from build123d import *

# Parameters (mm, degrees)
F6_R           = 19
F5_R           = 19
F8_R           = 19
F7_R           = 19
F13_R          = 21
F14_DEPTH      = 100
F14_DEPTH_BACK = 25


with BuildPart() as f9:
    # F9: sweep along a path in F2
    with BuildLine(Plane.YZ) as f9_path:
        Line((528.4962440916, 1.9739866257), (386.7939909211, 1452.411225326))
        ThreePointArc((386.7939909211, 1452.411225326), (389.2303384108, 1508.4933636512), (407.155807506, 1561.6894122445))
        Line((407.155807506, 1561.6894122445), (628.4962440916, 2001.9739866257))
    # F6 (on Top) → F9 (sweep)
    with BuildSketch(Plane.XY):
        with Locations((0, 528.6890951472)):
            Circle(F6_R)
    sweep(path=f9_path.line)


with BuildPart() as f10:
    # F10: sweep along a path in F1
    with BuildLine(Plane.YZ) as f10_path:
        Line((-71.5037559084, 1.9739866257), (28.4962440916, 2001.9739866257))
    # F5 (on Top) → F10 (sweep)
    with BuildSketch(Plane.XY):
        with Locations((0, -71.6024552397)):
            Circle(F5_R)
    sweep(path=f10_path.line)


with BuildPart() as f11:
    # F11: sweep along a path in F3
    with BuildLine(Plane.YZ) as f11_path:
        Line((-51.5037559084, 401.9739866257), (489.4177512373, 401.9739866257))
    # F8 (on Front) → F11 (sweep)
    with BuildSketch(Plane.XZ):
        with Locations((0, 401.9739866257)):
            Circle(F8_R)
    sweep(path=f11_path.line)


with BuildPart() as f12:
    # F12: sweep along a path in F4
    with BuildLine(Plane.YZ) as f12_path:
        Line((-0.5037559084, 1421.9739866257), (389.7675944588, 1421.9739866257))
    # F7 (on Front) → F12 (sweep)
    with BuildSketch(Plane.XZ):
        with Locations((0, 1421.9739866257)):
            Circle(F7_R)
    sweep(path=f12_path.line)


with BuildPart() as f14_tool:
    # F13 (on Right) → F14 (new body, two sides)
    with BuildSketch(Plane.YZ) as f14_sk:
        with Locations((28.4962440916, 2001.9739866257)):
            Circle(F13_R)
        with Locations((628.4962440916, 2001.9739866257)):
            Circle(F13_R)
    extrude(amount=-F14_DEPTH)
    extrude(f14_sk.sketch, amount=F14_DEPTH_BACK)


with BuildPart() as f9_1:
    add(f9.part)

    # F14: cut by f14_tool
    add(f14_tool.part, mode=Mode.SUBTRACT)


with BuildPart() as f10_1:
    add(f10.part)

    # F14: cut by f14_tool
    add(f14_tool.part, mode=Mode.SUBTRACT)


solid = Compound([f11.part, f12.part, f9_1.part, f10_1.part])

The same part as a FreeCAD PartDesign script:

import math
import FreeCAD as App
import Part
import Sketcher

doc = App.newDocument("Part")
params = doc.addObject("Spreadsheet::Sheet", "Params")
for row, (alias, value) in enumerate([
    ("sketch1_diameter", "38 mm"),
    ("sketch2_radius", "200 mm"),
    ("sketch3_diameter", "38 mm"),
    ("sketch5_diameter", "38 mm"),
    ("sketch7_diameter", "38 mm"),
    ("sketch9_diameter", "42 mm"),
    ("pad1_length", "100 mm"),
    ("pad1_length2", "25 mm"),
], start=1):
    params.set(f"A{row}", alias)
    params.set(f"B{row}", "=" + value)
    params.setAlias(f"B{row}", alias)

body = doc.addObject("PartDesign::Body", "Body")

sketch1 = doc.addObject("Sketcher::SketchObject", "Sketch")
body.addObject(sketch1)
sketch1.AttachmentSupport = (doc.XY_Plane, [""])
sketch1.MapMode = "FlatFace"
sketch1.addGeometry(Part.Circle(App.Vector(0, 529, 0), App.Vector(0, 0, 1), 19), False)
sketch1.addConstraint([
    Sketcher.Constraint("PointOnObject", 0, 3, -2),
    Sketcher.Constraint("Diameter", 0, 38.0),
    Sketcher.Constraint("DistanceY", -1, 1, 0, 3, 528.689095),
])
sketch1.setExpression("Constraints[1]", "Params.sketch1_diameter")

sketch2 = doc.addObject("Sketcher::SketchObject", "Sketch001")
body.addObject(sketch2)
sketch2.AttachmentSupport = (doc.YZ_Plane, [""])
sketch2.MapMode = "FlatFace"
sketch2.addGeometry([
    Part.LineSegment(App.Vector(528, 2, 0), App.Vector(387, 1452, 0)),
    Part.ArcOfCircle(Part.Circle(App.Vector(586, 1472, 0), App.Vector(0, 0, 1), 200), math.radians(153), math.radians(186)),
    Part.LineSegment(App.Vector(407, 1562, 0), App.Vector(628, 2002, 0)),
], False)
sketch2.addConstraint([
    Sketcher.Constraint("Tangent", 0, 2, 1, 2),
    Sketcher.Constraint("Tangent", 1, 1, 2, 1),
    Sketcher.Constraint("Radius", 1, 200.0),
    Sketcher.Constraint("DistanceX", 0, 1, 2, 2, 100.0),
    Sketcher.Constraint("DistanceY", 0, 1, 2, 2, 2000.0),
    Sketcher.Constraint("DistanceY", 0, 1, 1, 3, 1469.883901),
    Sketcher.Constraint("Distance", 0, 1457.342689),
    Sketcher.Constraint("DistanceX", -1, 1, 0, 2, 386.793991),
    Sketcher.Constraint("DistanceY", -1, 1, 1, 3, 1471.857887),
])
sketch2.setExpression("Constraints[2]", "Params.sketch2_radius")
doc.recompute()

additivepipe = doc.addObject("PartDesign::AdditivePipe", "AdditivePipe")
body.addObject(additivepipe)
additivepipe.Profile = sketch1
additivepipe.Spine = (sketch2, ["Edge1", "Edge2", "Edge3"])
body2 = doc.addObject("PartDesign::Body", "Body001")

sketch3 = doc.addObject("Sketcher::SketchObject", "Sketch002")
body2.addObject(sketch3)
sketch3.AttachmentSupport = (doc.getObject("XY_Plane001"), [""])
sketch3.MapMode = "FlatFace"
sketch3.addGeometry(Part.Circle(App.Vector(0, -72, 0), App.Vector(0, 0, 1), 19), False)
sketch3.addConstraint([
    Sketcher.Constraint("PointOnObject", 0, 3, -2),
    Sketcher.Constraint("Diameter", 0, 38.0),
    Sketcher.Constraint("DistanceY", 0, 3, -1, 1, 71.602455),
])
sketch3.setExpression("Constraints[1]", "Params.sketch3_diameter")

sketch4 = doc.addObject("Sketcher::SketchObject", "Sketch003")
body2.addObject(sketch4)
sketch4.Placement = App.Placement(App.Vector(0, -71.423896, 3.571195), App.Rotation(App.Vector(0, -0.049937617, -0.998752339), App.Vector(1, 0, 0), App.Vector(0, -0.998752339, 0.049937617), "ZXY"))
sketch4.addGeometry(Part.LineSegment(App.Vector(2, 0, 0), App.Vector(-2001, 0, 0)), False)
sketch4.addConstraint([
    Sketcher.Constraint("Horizontal", 0),
    Sketcher.Constraint("PointOnObject", 0, 1, -1),
    Sketcher.Constraint("DistanceX", 0, 2, 0, 1, 2002.49844),
    Sketcher.Constraint("DistanceX", -1, 1, 0, 1, 1.599203),
])
doc.recompute()

additivepipe2 = doc.addObject("PartDesign::AdditivePipe", "AdditivePipe001")
body2.addObject(additivepipe2)
additivepipe2.Profile = sketch3
additivepipe2.Spine = (sketch4, ["Edge1"])
body3 = doc.addObject("PartDesign::Body", "Body002")

sketch5 = doc.addObject("Sketcher::SketchObject", "Sketch004")
body3.addObject(sketch5)
sketch5.AttachmentSupport = (doc.getObject("XZ_Plane002"), [""])
sketch5.MapMode = "FlatFace"
sketch5.addGeometry(Part.Circle(App.Vector(0, 402, 0), App.Vector(0, 0, 1), 19), False)
sketch5.addConstraint([
    Sketcher.Constraint("PointOnObject", 0, 3, -2),
    Sketcher.Constraint("Diameter", 0, 38.0),
    Sketcher.Constraint("DistanceY", -1, 1, 0, 3, 401.973987),
])
sketch5.setExpression("Constraints[1]", "Params.sketch5_diameter")

sketch6 = doc.addObject("Sketcher::SketchObject", "Sketch005")
body3.addObject(sketch6)
sketch6.AttachmentSupport = (doc.getObject("XY_Plane002"), [""])
sketch6.MapMode = "FlatFace"
sketch6.AttachmentOffset = App.Placement(App.Vector(0, 0, 401.973987), App.Rotation())
sketch6.addGeometry(Part.LineSegment(App.Vector(0, -52, 0), App.Vector(0, 489, 0)), False)
sketch6.addConstraint([
    Sketcher.Constraint("Vertical", 0),
    Sketcher.Constraint("PointOnObject", 0, 1, -2),
    Sketcher.Constraint("DistanceY", 0, 1, 0, 2, 540.921507),
    Sketcher.Constraint("DistanceY", -1, 1, 0, 2, 489.417751),
])
doc.recompute()

additivepipe3 = doc.addObject("PartDesign::AdditivePipe", "AdditivePipe002")
body3.addObject(additivepipe3)
additivepipe3.Profile = sketch5
additivepipe3.Spine = (sketch6, ["Edge1"])
body4 = doc.addObject("PartDesign::Body", "Body003")

sketch7 = doc.addObject("Sketcher::SketchObject", "Sketch006")
body4.addObject(sketch7)
sketch7.AttachmentSupport = (doc.getObject("XZ_Plane003"), [""])
sketch7.MapMode = "FlatFace"
sketch7.addGeometry(Part.Circle(App.Vector(0, 1422, 0), App.Vector(0, 0, 1), 19), False)
sketch7.addConstraint([
    Sketcher.Constraint("PointOnObject", 0, 3, -2),
    Sketcher.Constraint("Diameter", 0, 38.0),
    Sketcher.Constraint("DistanceY", -1, 1, 0, 3, 1421.973987),
])
sketch7.setExpression("Constraints[1]", "Params.sketch7_diameter")

sketch8 = doc.addObject("Sketcher::SketchObject", "Sketch007")
body4.addObject(sketch8)
sketch8.AttachmentSupport = (doc.getObject("XY_Plane003"), [""])
sketch8.MapMode = "FlatFace"
sketch8.AttachmentOffset = App.Placement(App.Vector(0, 0, 1421.973987), App.Rotation())
sketch8.addGeometry(Part.LineSegment(App.Vector(0, -1, 0), App.Vector(0, 390, 0)), False)
sketch8.addConstraint([
    Sketcher.Constraint("Vertical", 0),
    Sketcher.Constraint("PointOnObject", 0, 1, -2),
    Sketcher.Constraint("DistanceY", 0, 1, 0, 2, 390.27135),
    Sketcher.Constraint("DistanceY", 0, 1, -1, 1, 0.503756),
])
doc.recompute()

additivepipe4 = doc.addObject("PartDesign::AdditivePipe", "AdditivePipe003")
body4.addObject(additivepipe4)
additivepipe4.Profile = sketch7
additivepipe4.Spine = (sketch8, ["Edge1"])
body5 = doc.addObject("PartDesign::Body", "Body004")
body5.AllowCompound = True

sketch9 = doc.addObject("Sketcher::SketchObject", "Sketch008")
body5.addObject(sketch9)
sketch9.AttachmentSupport = (doc.getObject("YZ_Plane004"), [""])
sketch9.MapMode = "FlatFace"
sketch9.addGeometry([
    Part.Circle(App.Vector(28, 2002, 0), App.Vector(0, 0, 1), 21),
    Part.Circle(App.Vector(628, 2002, 0), App.Vector(0, 0, 1), 21),
], False)
sketch9.addConstraint([
    Sketcher.Constraint("Equal", 0, 1),
    Sketcher.Constraint("Horizontal", 0, 3, 1, 3),
    Sketcher.Constraint("Diameter", 0, 42.0),
    Sketcher.Constraint("DistanceX", 0, 3, 1, 3, 600.0),
    Sketcher.Constraint("DistanceX", -1, 1, 0, 3, 28.496244),
    Sketcher.Constraint("DistanceY", -1, 1, 0, 3, 2001.973987),
])
sketch9.setExpression("Constraints[2]", "Params.sketch9_diameter")
pad1 = doc.addObject("PartDesign::Pad", "Pad")
body5.addObject(pad1)
pad1.Profile = sketch9
pad1.Type = "TwoLengths"
pad1.setExpression("Length", "Params.pad1_length")
pad1.setExpression("Length2", "Params.pad1_length2")
pad1.Reversed = True
doc.recompute()

body6 = doc.addObject("PartDesign::Body", "Body005")
body6.BaseFeature = body5
boolean = doc.addObject("PartDesign::Boolean", "Boolean")
body.addObject(boolean)
boolean.Type = "Cut"
boolean.addObjects([body6])
doc.recompute()

boolean2 = doc.addObject("PartDesign::Boolean", "Boolean001")
body2.addObject(boolean2)
boolean2.Type = "Cut"
boolean2.addObjects([body5])

doc.recompute()
